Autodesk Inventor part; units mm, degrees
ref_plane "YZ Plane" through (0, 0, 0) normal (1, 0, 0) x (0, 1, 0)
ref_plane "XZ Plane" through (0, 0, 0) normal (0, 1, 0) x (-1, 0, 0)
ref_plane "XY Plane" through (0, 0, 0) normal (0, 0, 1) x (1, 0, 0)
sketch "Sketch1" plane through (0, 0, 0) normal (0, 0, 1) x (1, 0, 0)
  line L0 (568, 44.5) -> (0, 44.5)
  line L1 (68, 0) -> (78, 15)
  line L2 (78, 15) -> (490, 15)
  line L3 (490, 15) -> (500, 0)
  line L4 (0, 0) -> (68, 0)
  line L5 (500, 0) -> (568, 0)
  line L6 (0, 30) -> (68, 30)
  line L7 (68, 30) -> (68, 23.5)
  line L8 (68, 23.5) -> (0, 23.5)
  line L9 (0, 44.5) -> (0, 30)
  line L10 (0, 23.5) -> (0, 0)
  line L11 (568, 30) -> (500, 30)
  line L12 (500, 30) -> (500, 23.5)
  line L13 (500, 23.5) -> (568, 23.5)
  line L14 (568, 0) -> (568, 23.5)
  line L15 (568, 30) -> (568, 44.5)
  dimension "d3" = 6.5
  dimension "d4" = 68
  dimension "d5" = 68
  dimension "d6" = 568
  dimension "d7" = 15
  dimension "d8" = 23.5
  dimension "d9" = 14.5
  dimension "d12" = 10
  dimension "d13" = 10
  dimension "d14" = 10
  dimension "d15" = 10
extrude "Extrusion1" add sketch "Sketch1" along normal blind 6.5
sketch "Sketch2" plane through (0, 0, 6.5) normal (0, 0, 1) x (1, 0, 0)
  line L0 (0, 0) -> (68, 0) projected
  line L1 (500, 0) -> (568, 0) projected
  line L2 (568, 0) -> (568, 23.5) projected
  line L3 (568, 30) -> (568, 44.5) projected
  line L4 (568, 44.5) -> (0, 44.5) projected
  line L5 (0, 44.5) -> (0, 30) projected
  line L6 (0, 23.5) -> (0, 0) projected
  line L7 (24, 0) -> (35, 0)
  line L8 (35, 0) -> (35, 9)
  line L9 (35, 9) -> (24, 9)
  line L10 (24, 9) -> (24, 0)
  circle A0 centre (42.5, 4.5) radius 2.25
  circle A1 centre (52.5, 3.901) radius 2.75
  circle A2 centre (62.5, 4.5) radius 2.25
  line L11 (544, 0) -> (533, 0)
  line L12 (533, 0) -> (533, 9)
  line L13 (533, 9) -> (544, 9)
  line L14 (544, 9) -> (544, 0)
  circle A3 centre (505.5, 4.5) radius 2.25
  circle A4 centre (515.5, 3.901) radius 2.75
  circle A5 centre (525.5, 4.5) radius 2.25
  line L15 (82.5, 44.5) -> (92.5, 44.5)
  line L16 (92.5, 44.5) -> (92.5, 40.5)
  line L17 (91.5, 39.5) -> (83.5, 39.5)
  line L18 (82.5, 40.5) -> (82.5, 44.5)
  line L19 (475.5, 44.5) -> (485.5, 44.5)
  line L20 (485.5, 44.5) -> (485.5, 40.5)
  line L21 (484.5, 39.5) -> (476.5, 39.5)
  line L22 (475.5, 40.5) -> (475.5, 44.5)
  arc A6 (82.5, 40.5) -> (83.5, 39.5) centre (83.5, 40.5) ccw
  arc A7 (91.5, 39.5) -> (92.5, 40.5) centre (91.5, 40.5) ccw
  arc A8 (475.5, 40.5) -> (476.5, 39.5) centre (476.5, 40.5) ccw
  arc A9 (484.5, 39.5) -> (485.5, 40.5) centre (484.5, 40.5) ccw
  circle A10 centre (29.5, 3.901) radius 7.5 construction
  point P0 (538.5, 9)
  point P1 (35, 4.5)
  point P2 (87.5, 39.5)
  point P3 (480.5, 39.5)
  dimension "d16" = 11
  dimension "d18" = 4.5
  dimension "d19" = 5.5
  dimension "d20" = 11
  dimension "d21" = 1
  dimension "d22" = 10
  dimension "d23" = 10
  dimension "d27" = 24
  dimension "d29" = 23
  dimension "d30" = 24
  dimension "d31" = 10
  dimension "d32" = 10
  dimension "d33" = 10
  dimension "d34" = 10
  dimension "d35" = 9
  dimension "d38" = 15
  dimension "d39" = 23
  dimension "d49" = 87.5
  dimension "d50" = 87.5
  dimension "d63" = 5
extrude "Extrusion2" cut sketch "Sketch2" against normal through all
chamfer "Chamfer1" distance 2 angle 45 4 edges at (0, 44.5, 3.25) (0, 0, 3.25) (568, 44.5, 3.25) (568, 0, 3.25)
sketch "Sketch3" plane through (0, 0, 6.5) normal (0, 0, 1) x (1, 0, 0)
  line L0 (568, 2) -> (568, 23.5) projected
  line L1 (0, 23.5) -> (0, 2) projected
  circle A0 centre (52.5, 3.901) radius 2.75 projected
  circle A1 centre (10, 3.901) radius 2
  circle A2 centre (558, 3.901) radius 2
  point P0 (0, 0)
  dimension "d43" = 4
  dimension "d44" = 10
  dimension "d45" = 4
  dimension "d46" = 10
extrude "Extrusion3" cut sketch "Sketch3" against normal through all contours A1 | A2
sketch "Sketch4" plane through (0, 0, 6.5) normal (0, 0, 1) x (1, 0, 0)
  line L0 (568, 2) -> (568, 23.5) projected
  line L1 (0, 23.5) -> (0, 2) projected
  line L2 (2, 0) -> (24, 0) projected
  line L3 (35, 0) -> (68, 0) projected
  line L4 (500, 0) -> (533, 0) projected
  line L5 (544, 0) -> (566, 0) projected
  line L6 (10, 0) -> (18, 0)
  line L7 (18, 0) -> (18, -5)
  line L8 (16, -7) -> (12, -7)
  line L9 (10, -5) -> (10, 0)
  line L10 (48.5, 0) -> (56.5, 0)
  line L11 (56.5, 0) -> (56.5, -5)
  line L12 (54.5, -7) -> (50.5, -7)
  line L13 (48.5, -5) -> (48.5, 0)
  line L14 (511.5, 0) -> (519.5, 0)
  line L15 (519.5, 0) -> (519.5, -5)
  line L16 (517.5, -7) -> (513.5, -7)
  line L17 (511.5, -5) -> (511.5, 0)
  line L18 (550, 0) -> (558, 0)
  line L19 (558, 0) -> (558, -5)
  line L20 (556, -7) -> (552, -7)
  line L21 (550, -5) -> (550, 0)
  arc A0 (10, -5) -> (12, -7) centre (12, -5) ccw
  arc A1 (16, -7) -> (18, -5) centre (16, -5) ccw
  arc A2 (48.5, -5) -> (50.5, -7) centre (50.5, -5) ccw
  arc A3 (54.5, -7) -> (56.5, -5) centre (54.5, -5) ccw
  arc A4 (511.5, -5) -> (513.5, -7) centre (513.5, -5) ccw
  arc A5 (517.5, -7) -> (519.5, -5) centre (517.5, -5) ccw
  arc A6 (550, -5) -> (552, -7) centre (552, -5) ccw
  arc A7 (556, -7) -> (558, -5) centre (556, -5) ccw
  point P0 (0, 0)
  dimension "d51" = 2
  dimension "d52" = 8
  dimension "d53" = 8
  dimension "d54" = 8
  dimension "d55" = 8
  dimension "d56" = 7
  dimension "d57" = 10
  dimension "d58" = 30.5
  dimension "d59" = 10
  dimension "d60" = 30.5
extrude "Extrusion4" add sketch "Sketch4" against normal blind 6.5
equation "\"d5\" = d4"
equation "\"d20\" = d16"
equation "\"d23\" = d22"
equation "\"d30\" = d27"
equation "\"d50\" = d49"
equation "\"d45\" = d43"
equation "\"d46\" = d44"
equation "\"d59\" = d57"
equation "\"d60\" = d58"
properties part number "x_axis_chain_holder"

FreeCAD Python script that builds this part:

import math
import FreeCAD as App
import Part
import Sketcher


def edges_at(feature, points):
    """Names of the edges that pass closest to the given points."""
    edges = feature.Shape.Edges
    near = lambda p: min(range(len(edges)), key=lambda i: edges[i].distToShape(Part.Vertex(*p))[0])
    return sorted({f"Edge{near(p) + 1}" for p in points})


def add_polygon(sketch, points):
    """Adds a closed chain of lines whose ends are joined by coincident constraints."""
    first, n = sketch.GeometryCount, len(points)
    for a, b in zip(points, points[1:] + points[:1]):
        sketch.addGeometry(Part.LineSegment(App.Vector(*a, 0), App.Vector(*b, 0)), False)
    for i in range(n):
        sketch.addConstraint(Sketcher.Constraint("Coincident", first + i, 2, first + (i + 1) % n, 1))

doc = App.newDocument("Part")
body = doc.addObject("PartDesign::Body", "Body")

sketch1 = body.newObject("Sketcher::SketchObject", "Sketch")
sketch1.AttachmentSupport = (doc.getObject("XY_Plane"), [""])
sketch1.MapMode = "FlatFace"
add_polygon(sketch1, [(568, 30), (568, 44), (0, 44), (0, 30), (68, 30), (68, 24), (0, 24), (0, 0), (68, 0), (78, 15), (490, 15), (500, 0), (568, 0), (568, 24), (500, 24), (500, 30)])
sketch1.addConstraint([
    Sketcher.Constraint("Vertical", 0),
    Sketcher.Constraint("Horizontal", 1),
    Sketcher.Constraint("Vertical", 2),
    Sketcher.Constraint("Horizontal", 3),
    Sketcher.Constraint("Vertical", 4),
    Sketcher.Constraint("Horizontal", 5),
    Sketcher.Constraint("Vertical", 6),
    Sketcher.Constraint("Horizontal", 7),
    Sketcher.Constraint("Horizontal", 9),
    Sketcher.Constraint("Horizontal", 11),
    Sketcher.Constraint("Vertical", 12),
    Sketcher.Constraint("Horizontal", 13),
    Sketcher.Constraint("Vertical", 14),
    Sketcher.Constraint("Horizontal", 15),
    Sketcher.Constraint("Coincident", 6, 2, -1, 1),
    Sketcher.Constraint("PointOnObject", 1, 2, -2),
    Sketcher.Constraint("PointOnObject", 10, 2, -1),
    Sketcher.Constraint("Horizontal", 5, 2, 12, 2),
    Sketcher.Constraint("Horizontal", 3, 2, 14, 2),
    Sketcher.Constraint("Vertical", 4, 2, 7, 2),
    Sketcher.Constraint("Vertical", 0, 2, 11, 2),
    Sketcher.Constraint("Vertical", 10, 2, 13, 2),
    Sketcher.Constraint("Equal", 7, 11),
    Sketcher.Constraint("Equal", 8, 10),
    Sketcher.Constraint("DistanceX", 1, 2, 1, 1, 568.0),
    Sketcher.Constraint("DistanceX", 3, 1, 3, 2, 68.0),
    Sketcher.Constraint("DistanceY", 0, 1, 0, 2, 14.5),
    Sketcher.Constraint("DistanceY", 4, 2, 4, 1, 6.5),
    Sketcher.Constraint("DistanceY", 6, 2, 6, 1, 23.5),
    Sketcher.Constraint("DistanceY", -1, 1, 8, 2, 15.0),
    Sketcher.Constraint("DistanceX", 4, 2, 8, 2, 10.0),
])
pad1 = body.newObject("PartDesign::Pad", "Pad")
pad1.Profile = sketch1
pad1.Length = 6.5

sketch2 = body.newObject("Sketcher::SketchObject", "Sketch001")
sketch2.AttachmentSupport = (doc.getObject("XY_Plane"), [""])
sketch2.MapMode = "FlatFace"
sketch2.AttachmentOffset = App.Placement(App.Vector(0, 0, 6.5), App.Rotation())
add_polygon(sketch2, [(24, 9), (24, 0), (35, 0), (35, 9)])
add_polygon(sketch2, [(533, 9), (533, 0), (544, 0), (544, 9)])
sketch2.addGeometry(Part.LineSegment(App.Vector(485.5, 40.5, 0), App.Vector(485.5, 44.5, 0)), False)
sketch2.addGeometry(Part.LineSegment(App.Vector(485.5, 44.5, 0), App.Vector(475.5, 44.5, 0)), False)
sketch2.addGeometry(Part.LineSegment(App.Vector(475.5, 44.5, 0), App.Vector(475.5, 40.5, 0)), False)
sketch2.addGeometry(Part.ArcOfCircle(Part.Circle(App.Vector(476.5, 40.5, 0), App.Vector(0, 0, 1), 1), math.radians(180), math.radians(270)), False)
sketch2.addGeometry(Part.LineSegment(App.Vector(476.5, 39.5, 0), App.Vector(484.5, 39.5, 0)), False)
sketch2.addGeometry(Part.ArcOfCircle(Part.Circle(App.Vector(484.5, 40.5, 0), App.Vector(0, 0, 1), 1), math.radians(-90), math.radians(0)), False)
sketch2.addGeometry(Part.LineSegment(App.Vector(92.5, 40.5, 0), App.Vector(92.5, 44.5, 0)), False)
sketch2.addGeometry(Part.LineSegment(App.Vector(92.5, 44.5, 0), App.Vector(82.5, 44.5, 0)), False)
sketch2.addGeometry(Part.LineSegment(App.Vector(82.5, 44.5, 0), App.Vector(82.5, 40.5, 0)), False)
sketch2.addGeometry(Part.ArcOfCircle(Part.Circle(App.Vector(83.5, 40.5, 0), App.Vector(0, 0, 1), 1), math.radians(180), math.radians(270)), False)
sketch2.addGeometry(Part.LineSegment(App.Vector(83.5, 39.5, 0), App.Vector(91.5, 39.5, 0)), False)
sketch2.addGeometry(Part.ArcOfCircle(Part.Circle(App.Vector(91.5, 40.5, 0), App.Vector(0, 0, 1), 1), math.radians(-90), math.radians(0)), False)
sketch2.addGeometry(Part.Circle(App.Vector(42.5, 4.5, 0), App.Vector(0, 0, 1), 2.2), False)
sketch2.addGeometry(Part.Circle(App.Vector(52.5, 3.9, 0), App.Vector(0, 0, 1), 2.8), False)
sketch2.addGeometry(Part.Circle(App.Vector(62.5, 4.5, 0), App.Vector(0, 0, 1), 2.2), False)
sketch2.addGeometry(Part.Circle(App.Vector(505.5, 4.5, 0), App.Vector(0, 0, 1), 2.2), False)
sketch2.addGeometry(Part.Circle(App.Vector(515.5, 3.9, 0), App.Vector(0, 0, 1), 2.8), False)
sketch2.addGeometry(Part.Circle(App.Vector(525.5, 4.5, 0), App.Vector(0, 0, 1), 2.2), False)
sketch2.addConstraint([
    Sketcher.Constraint("Coincident", 8, 2, 9, 1),
    Sketcher.Constraint("Coincident", 9, 2, 10, 1),
    Sketcher.Constraint("Tangent", 10, 2, 11, 1),
    Sketcher.Constraint("Tangent", 11, 2, 12, 1),
    Sketcher.Constraint("Tangent", 12, 2, 13, 1),
    Sketcher.Constraint("Tangent", 13, 2, 8, 1),
    Sketcher.Constraint("Coincident", 14, 2, 15, 1),
    Sketcher.Constraint("Coincident", 15, 2, 16, 1),
    Sketcher.Constraint("Tangent", 16, 2, 17, 1),
    Sketcher.Constraint("Tangent", 17, 2, 18, 1),
    Sketcher.Constraint("Tangent", 18, 2, 19, 1),
    Sketcher.Constraint("Tangent", 19, 2, 14, 1),
    Sketcher.Constraint("Vertical", 0),
    Sketcher.Constraint("Horizontal", 1),
    Sketcher.Constraint("Vertical", 2),
    Sketcher.Constraint("Horizontal", 3),
    Sketcher.Constraint("Vertical", 4),
    Sketcher.Constraint("Horizontal", 5),
    Sketcher.Constraint("Vertical", 6),
    Sketcher.Constraint("Horizontal", 7),
    Sketcher.Constraint("Vertical", 8),
    Sketcher.Constraint("Horizontal", 9),
    Sketcher.Constraint("Vertical", 10),
    Sketcher.Constraint("Horizontal", 12),
    Sketcher.Constraint("Vertical", 14),
    Sketcher.Constraint("Horizontal", 15),
    Sketcher.Constraint("Vertical", 16),
    Sketcher.Constraint("Horizontal", 18),
    Sketcher.Constraint("Equal", 11, 13),
    Sketcher.Constraint("Equal", 13, 17),
    Sketcher.Constraint("Equal", 17, 19),
    Sketcher.Constraint("Equal", 20, 22),
    Sketcher.Constraint("Equal", 22, 23),
    Sketcher.Constraint("Equal", 21, 24),
    Sketcher.Constraint("Equal", 23, 25),
    Sketcher.Constraint("PointOnObject", 0, 2, -1),
    Sketcher.Constraint("PointOnObject", 4, 2, -1),
    Sketcher.Constraint("Horizontal", 13, 3, 17, 3),
    Sketcher.Constraint("Horizontal", 20, 3, 22, 3),
    Sketcher.Constraint("Horizontal", 22, 3, 23, 3),
    Sketcher.Constraint("Horizontal", 21, 3, 24, 3),
    Sketcher.Constraint("Horizontal", 23, 3, 25, 3),
    Sketcher.Constraint("Horizontal", 3, 2, 6, 2),
    Sketcher.Constraint("Horizontal", 9, 2, 14, 2),
    Sketcher.Constraint("Equal", 3, 5),
    Sketcher.Constraint("Equal", 9, 15),
    Sketcher.Constraint("Radius", 11, 1.0),
    Sketcher.Constraint("Diameter", 20, 4.5),
    Sketcher.Constraint("Diameter", 21, 5.5),
    Sketcher.Constraint("DistanceX", 1, 1, 1, 2, 11.0),
    Sketcher.Constraint("DistanceX", 9, 2, 9, 1, 10.0),
    Sketcher.Constraint("DistanceY", 0, 2, 0, 1, 9.0),
    Sketcher.Constraint("DistanceX", -1, 1, 0, 2, 24.0),
    Sketcher.Constraint("DistanceX", 20, 3, 21, 3, 10.0),
    Sketcher.Constraint("DistanceX", 21, 3, 22, 3, 10.0),
    Sketcher.Constraint("DistanceX", 23, 3, 24, 3, 10.0),
    Sketcher.Constraint("DistanceX", 24, 3, 25, 3, 10.0),
    Sketcher.Constraint("DistanceY", 11, 2, 9, 2, 5.0),
    Sketcher.Constraint("DistanceY", -1, 1, 20, 3, 4.5),
    Sketcher.Constraint("DistanceX", -1, 1, 4, 2, 533.0),
    Sketcher.Constraint("DistanceX", 17, 3, 11, 3, 393.0),
    Sketcher.Constraint("DistanceX", 20, 3, 17, 3, 41.0),
    Sketcher.Constraint("DistanceY", 20, 3, 17, 3, 36.0),
    Sketcher.Constraint("DistanceX", 13, 3, 23, 3, 21.0),
    Sketcher.Constraint("DistanceX", -1, 1, 11, 3, 476.5),
    Sketcher.Constraint("DistanceY", -1, 1, 21, 3, 3.901),
])
pocket1 = body.newObject("PartDesign::Pocket", "Pocket")
pocket1.Profile = sketch2
pocket1.Type = "ThroughAll"
doc.recompute()

chamfer = body.newObject("PartDesign::Chamfer", "Chamfer")
chamfer.Base = (pocket1, edges_at(pocket1, [
    (0, 44.5, 3.25),
    (0, 0, 3.25),
    (568, 44.5, 3.25),
    (568, 0, 3.25),
]))
chamfer.Size = 2

sketch3 = body.newObject("Sketcher::SketchObject", "Sketch002")
sketch3.AttachmentSupport = (doc.getObject("XY_Plane"), [""])
sketch3.MapMode = "FlatFace"
sketch3.AttachmentOffset = App.Placement(App.Vector(0, 0, 6.5), App.Rotation())
sketch3.addGeometry([
    Part.Circle(App.Vector(10, 3.9, 0), App.Vector(0, 0, 1), 2),
    Part.Circle(App.Vector(558, 3.9, 0), App.Vector(0, 0, 1), 2),
], False)
sketch3.addConstraint([
    Sketcher.Constraint("Equal", 0, 1),
    Sketcher.Constraint("Horizontal", 0, 3, 1, 3),
    Sketcher.Constraint("Diameter", 0, 4.0),
    Sketcher.Constraint("DistanceX", -1, 1, 0, 3, 10.0),
    Sketcher.Constraint("DistanceX", -1, 1, 1, 3, 558.0),
    Sketcher.Constraint("DistanceY", -1, 1, 0, 3, 3.901),
])
pocket2 = body.newObject("PartDesign::Pocket", "Pocket001")
pocket2.Profile = sketch3
pocket2.Type = "ThroughAll"

sketch4 = body.newObject("Sketcher::SketchObject", "Sketch003")
sketch4.AttachmentSupport = (doc.getObject("XY_Plane"), [""])
sketch4.MapMode = "FlatFace"
sketch4.AttachmentOffset = App.Placement(App.Vector(0, 0, 6.5), App.Rotation())
sketch4.addGeometry([
    Part.LineSegment(App.Vector(18, 0, 0), App.Vector(10, 0, 0)),
    Part.LineSegment(App.Vector(10, 0, 0), App.Vector(10, -5, 0)),
    Part.ArcOfCircle(Part.Circle(App.Vector(12, -5, 0), App.Vector(0, 0, 1), 2), math.radians(180), math.radians(270)),
    Part.LineSegment(App.Vector(12, -7, 0), App.Vector(16, -7, 0)),
    Part.ArcOfCircle(Part.Circle(App.Vector(16, -5, 0), App.Vector(0, 0, 1), 2), math.radians(-90), math.radians(0)),
    Part.LineSegment(App.Vector(18, -5, 0), App.Vector(18, 0, 0)),
    Part.LineSegment(App.Vector(56.5, 0, 0), App.Vector(48.5, 0, 0)),
    Part.LineSegment(App.Vector(48.5, 0, 0), App.Vector(48.5, -5, 0)),
    Part.ArcOfCircle(Part.Circle(App.Vector(50.5, -5, 0), App.Vector(0, 0, 1), 2), math.radians(180), math.radians(270)),
    Part.LineSegment(App.Vector(50.5, -7, 0), App.Vector(54.5, -7, 0)),
    Part.ArcOfCircle(Part.Circle(App.Vector(54.5, -5, 0), App.Vector(0, 0, 1), 2), math.radians(-90), math.radians(0)),
    Part.LineSegment(App.Vector(56.5, -5, 0), App.Vector(56.5, 0, 0)),
    Part.LineSegment(App.Vector(519.5, 0, 0), App.Vector(511.5, 0, 0)),
    Part.LineSegment(App.Vector(511.5, 0, 0), App.Vector(511.5, -5, 0)),
    Part.ArcOfCircle(Part.Circle(App.Vector(513.5, -5, 0), App.Vector(0, 0, 1), 2), math.radians(180), math.radians(270)),
    Part.LineSegment(App.Vector(513.5, -7, 0), App.Vector(517.5, -7, 0)),
    Part.ArcOfCircle(Part.Circle(App.Vector(517.5, -5, 0), App.Vector(0, 0, 1), 2), math.radians(-90), math.radians(0)),
    Part.LineSegment(App.Vector(519.5, -5, 0), App.Vector(519.5, 0, 0)),
    Part.LineSegment(App.Vector(558, 0, 0), App.Vector(550, 0, 0)),
    Part.LineSegment(App.Vector(550, 0, 0), App.Vector(550, -5, 0)),
    Part.ArcOfCircle(Part.Circle(App.Vector(552, -5, 0), App.Vector(0, 0, 1), 2), math.radians(180), math.radians(270)),
    Part.LineSegment(App.Vector(552, -7, 0), App.Vector(556, -7, 0)),
    Part.ArcOfCircle(Part.Circle(App.Vector(556, -5, 0), App.Vector(0, 0, 1), 2), math.radians(-90), math.radians(0)),
    Part.LineSegment(App.Vector(558, -5, 0), App.Vector(558, 0, 0)),
], False)
sketch4.addConstraint([
    Sketcher.Constraint("Coincident", 0, 2, 1, 1),
    Sketcher.Constraint("Tangent", 1, 2, 2, 1),
    Sketcher.Constraint("Tangent", 2, 2, 3, 1),
    Sketcher.Constraint("Tangent", 3, 2, 4, 1),
    Sketcher.Constraint("Tangent", 4, 2, 5, 1),
    Sketcher.Constraint("Coincident", 5, 2, 0, 1),
    Sketcher.Constraint("Coincident", 6, 2, 7, 1),
    Sketcher.Constraint("Tangent", 7, 2, 8, 1),
    Sketcher.Constraint("Tangent", 8, 2, 9, 1),
    Sketcher.Constraint("Tangent", 9, 2, 10, 1),
    Sketcher.Constraint("Tangent", 10, 2, 11, 1),
    Sketcher.Constraint("Coincident", 11, 2, 6, 1),
    Sketcher.Constraint("Coincident", 12, 2, 13, 1),
    Sketcher.Constraint("Tangent", 13, 2, 14, 1),
    Sketcher.Constraint("Tangent", 14, 2, 15, 1),
    Sketcher.Constraint("Tangent", 15, 2, 16, 1),
    Sketcher.Constraint("Tangent", 16, 2, 17, 1),
    Sketcher.Constraint("Coincident", 17, 2, 12, 1),
    Sketcher.Constraint("Coincident", 18, 2, 19, 1),
    Sketcher.Constraint("Tangent", 19, 2, 20, 1),
    Sketcher.Constraint("Tangent", 20, 2, 21, 1),
    Sketcher.Constraint("Tangent", 21, 2, 22, 1),
    Sketcher.Constraint("Tangent", 22, 2, 23, 1),
    Sketcher.Constraint("Coincident", 23, 2, 18, 1),
    Sketcher.Constraint("Horizontal", 0),
    Sketcher.Constraint("Vertical", 1),
    Sketcher.Constraint("Horizontal", 3),
    Sketcher.Constraint("Vertical", 5),
    Sketcher.Constraint("Horizontal", 6),
    Sketcher.Constraint("Vertical", 7),
    Sketcher.Constraint("Horizontal", 9),
    Sketcher.Constraint("Vertical", 11),
    Sketcher.Constraint("Horizontal", 12),
    Sketcher.Constraint("Vertical", 13),
    Sketcher.Constraint("Horizontal", 15),
    Sketcher.Constraint("Vertical", 17),
    Sketcher.Constraint("Horizontal", 18),
    Sketcher.Constraint("Vertical", 19),
    Sketcher.Constraint("Horizontal", 21),
    Sketcher.Constraint("Vertical", 23),
    Sketcher.Constraint("Equal", 2, 4),
    Sketcher.Constraint("Equal", 4, 8),
    Sketcher.Constraint("Equal", 8, 10),
    Sketcher.Constraint("Equal", 10, 14),
    Sketcher.Constraint("Equal", 14, 16),
    Sketcher.Constraint("Equal", 16, 20),
    Sketcher.Constraint("Equal", 20, 22),
    Sketcher.Constraint("PointOnObject", 0, 2, -1),
    Sketcher.Constraint("PointOnObject", 6, 2, -1),
    Sketcher.Constraint("PointOnObject", 12, 2, -1),
    Sketcher.Constraint("PointOnObject", 18, 2, -1),
    Sketcher.Constraint("Horizontal", 4, 3, 8, 3),
    Sketcher.Constraint("Horizontal", 10, 3, 14, 3),
    Sketcher.Constraint("Horizontal", 16, 3, 20, 3),
    Sketcher.Constraint("Equal", 0, 6),
    Sketcher.Constraint("Equal", 6, 12),
    Sketcher.Constraint("Equal", 12, 18),
    Sketcher.Constraint("Radius", 2, 2.0),
    Sketcher.Constraint("DistanceX", 0, 2, 0, 1, 8.0),
    Sketcher.Constraint("DistanceX", -1, 1, 0, 2, 10.0),
    Sketcher.Constraint("DistanceY", 2, 2, -1, 1, 7.0),
    Sketcher.Constraint("DistanceX", 5, 2, 6, 2, 30.5),
    Sketcher.Constraint("DistanceX", 17, 2, 18, 2, 30.5),
    Sketcher.Constraint("DistanceX", -1, 1, 20, 3, 552.0),
])
pad2 = body.newObject("PartDesign::Pad", "Pad001")
pad2.Profile = sketch4
pad2.Length = 6.5
pad2.Reversed = True

doc.recompute()
